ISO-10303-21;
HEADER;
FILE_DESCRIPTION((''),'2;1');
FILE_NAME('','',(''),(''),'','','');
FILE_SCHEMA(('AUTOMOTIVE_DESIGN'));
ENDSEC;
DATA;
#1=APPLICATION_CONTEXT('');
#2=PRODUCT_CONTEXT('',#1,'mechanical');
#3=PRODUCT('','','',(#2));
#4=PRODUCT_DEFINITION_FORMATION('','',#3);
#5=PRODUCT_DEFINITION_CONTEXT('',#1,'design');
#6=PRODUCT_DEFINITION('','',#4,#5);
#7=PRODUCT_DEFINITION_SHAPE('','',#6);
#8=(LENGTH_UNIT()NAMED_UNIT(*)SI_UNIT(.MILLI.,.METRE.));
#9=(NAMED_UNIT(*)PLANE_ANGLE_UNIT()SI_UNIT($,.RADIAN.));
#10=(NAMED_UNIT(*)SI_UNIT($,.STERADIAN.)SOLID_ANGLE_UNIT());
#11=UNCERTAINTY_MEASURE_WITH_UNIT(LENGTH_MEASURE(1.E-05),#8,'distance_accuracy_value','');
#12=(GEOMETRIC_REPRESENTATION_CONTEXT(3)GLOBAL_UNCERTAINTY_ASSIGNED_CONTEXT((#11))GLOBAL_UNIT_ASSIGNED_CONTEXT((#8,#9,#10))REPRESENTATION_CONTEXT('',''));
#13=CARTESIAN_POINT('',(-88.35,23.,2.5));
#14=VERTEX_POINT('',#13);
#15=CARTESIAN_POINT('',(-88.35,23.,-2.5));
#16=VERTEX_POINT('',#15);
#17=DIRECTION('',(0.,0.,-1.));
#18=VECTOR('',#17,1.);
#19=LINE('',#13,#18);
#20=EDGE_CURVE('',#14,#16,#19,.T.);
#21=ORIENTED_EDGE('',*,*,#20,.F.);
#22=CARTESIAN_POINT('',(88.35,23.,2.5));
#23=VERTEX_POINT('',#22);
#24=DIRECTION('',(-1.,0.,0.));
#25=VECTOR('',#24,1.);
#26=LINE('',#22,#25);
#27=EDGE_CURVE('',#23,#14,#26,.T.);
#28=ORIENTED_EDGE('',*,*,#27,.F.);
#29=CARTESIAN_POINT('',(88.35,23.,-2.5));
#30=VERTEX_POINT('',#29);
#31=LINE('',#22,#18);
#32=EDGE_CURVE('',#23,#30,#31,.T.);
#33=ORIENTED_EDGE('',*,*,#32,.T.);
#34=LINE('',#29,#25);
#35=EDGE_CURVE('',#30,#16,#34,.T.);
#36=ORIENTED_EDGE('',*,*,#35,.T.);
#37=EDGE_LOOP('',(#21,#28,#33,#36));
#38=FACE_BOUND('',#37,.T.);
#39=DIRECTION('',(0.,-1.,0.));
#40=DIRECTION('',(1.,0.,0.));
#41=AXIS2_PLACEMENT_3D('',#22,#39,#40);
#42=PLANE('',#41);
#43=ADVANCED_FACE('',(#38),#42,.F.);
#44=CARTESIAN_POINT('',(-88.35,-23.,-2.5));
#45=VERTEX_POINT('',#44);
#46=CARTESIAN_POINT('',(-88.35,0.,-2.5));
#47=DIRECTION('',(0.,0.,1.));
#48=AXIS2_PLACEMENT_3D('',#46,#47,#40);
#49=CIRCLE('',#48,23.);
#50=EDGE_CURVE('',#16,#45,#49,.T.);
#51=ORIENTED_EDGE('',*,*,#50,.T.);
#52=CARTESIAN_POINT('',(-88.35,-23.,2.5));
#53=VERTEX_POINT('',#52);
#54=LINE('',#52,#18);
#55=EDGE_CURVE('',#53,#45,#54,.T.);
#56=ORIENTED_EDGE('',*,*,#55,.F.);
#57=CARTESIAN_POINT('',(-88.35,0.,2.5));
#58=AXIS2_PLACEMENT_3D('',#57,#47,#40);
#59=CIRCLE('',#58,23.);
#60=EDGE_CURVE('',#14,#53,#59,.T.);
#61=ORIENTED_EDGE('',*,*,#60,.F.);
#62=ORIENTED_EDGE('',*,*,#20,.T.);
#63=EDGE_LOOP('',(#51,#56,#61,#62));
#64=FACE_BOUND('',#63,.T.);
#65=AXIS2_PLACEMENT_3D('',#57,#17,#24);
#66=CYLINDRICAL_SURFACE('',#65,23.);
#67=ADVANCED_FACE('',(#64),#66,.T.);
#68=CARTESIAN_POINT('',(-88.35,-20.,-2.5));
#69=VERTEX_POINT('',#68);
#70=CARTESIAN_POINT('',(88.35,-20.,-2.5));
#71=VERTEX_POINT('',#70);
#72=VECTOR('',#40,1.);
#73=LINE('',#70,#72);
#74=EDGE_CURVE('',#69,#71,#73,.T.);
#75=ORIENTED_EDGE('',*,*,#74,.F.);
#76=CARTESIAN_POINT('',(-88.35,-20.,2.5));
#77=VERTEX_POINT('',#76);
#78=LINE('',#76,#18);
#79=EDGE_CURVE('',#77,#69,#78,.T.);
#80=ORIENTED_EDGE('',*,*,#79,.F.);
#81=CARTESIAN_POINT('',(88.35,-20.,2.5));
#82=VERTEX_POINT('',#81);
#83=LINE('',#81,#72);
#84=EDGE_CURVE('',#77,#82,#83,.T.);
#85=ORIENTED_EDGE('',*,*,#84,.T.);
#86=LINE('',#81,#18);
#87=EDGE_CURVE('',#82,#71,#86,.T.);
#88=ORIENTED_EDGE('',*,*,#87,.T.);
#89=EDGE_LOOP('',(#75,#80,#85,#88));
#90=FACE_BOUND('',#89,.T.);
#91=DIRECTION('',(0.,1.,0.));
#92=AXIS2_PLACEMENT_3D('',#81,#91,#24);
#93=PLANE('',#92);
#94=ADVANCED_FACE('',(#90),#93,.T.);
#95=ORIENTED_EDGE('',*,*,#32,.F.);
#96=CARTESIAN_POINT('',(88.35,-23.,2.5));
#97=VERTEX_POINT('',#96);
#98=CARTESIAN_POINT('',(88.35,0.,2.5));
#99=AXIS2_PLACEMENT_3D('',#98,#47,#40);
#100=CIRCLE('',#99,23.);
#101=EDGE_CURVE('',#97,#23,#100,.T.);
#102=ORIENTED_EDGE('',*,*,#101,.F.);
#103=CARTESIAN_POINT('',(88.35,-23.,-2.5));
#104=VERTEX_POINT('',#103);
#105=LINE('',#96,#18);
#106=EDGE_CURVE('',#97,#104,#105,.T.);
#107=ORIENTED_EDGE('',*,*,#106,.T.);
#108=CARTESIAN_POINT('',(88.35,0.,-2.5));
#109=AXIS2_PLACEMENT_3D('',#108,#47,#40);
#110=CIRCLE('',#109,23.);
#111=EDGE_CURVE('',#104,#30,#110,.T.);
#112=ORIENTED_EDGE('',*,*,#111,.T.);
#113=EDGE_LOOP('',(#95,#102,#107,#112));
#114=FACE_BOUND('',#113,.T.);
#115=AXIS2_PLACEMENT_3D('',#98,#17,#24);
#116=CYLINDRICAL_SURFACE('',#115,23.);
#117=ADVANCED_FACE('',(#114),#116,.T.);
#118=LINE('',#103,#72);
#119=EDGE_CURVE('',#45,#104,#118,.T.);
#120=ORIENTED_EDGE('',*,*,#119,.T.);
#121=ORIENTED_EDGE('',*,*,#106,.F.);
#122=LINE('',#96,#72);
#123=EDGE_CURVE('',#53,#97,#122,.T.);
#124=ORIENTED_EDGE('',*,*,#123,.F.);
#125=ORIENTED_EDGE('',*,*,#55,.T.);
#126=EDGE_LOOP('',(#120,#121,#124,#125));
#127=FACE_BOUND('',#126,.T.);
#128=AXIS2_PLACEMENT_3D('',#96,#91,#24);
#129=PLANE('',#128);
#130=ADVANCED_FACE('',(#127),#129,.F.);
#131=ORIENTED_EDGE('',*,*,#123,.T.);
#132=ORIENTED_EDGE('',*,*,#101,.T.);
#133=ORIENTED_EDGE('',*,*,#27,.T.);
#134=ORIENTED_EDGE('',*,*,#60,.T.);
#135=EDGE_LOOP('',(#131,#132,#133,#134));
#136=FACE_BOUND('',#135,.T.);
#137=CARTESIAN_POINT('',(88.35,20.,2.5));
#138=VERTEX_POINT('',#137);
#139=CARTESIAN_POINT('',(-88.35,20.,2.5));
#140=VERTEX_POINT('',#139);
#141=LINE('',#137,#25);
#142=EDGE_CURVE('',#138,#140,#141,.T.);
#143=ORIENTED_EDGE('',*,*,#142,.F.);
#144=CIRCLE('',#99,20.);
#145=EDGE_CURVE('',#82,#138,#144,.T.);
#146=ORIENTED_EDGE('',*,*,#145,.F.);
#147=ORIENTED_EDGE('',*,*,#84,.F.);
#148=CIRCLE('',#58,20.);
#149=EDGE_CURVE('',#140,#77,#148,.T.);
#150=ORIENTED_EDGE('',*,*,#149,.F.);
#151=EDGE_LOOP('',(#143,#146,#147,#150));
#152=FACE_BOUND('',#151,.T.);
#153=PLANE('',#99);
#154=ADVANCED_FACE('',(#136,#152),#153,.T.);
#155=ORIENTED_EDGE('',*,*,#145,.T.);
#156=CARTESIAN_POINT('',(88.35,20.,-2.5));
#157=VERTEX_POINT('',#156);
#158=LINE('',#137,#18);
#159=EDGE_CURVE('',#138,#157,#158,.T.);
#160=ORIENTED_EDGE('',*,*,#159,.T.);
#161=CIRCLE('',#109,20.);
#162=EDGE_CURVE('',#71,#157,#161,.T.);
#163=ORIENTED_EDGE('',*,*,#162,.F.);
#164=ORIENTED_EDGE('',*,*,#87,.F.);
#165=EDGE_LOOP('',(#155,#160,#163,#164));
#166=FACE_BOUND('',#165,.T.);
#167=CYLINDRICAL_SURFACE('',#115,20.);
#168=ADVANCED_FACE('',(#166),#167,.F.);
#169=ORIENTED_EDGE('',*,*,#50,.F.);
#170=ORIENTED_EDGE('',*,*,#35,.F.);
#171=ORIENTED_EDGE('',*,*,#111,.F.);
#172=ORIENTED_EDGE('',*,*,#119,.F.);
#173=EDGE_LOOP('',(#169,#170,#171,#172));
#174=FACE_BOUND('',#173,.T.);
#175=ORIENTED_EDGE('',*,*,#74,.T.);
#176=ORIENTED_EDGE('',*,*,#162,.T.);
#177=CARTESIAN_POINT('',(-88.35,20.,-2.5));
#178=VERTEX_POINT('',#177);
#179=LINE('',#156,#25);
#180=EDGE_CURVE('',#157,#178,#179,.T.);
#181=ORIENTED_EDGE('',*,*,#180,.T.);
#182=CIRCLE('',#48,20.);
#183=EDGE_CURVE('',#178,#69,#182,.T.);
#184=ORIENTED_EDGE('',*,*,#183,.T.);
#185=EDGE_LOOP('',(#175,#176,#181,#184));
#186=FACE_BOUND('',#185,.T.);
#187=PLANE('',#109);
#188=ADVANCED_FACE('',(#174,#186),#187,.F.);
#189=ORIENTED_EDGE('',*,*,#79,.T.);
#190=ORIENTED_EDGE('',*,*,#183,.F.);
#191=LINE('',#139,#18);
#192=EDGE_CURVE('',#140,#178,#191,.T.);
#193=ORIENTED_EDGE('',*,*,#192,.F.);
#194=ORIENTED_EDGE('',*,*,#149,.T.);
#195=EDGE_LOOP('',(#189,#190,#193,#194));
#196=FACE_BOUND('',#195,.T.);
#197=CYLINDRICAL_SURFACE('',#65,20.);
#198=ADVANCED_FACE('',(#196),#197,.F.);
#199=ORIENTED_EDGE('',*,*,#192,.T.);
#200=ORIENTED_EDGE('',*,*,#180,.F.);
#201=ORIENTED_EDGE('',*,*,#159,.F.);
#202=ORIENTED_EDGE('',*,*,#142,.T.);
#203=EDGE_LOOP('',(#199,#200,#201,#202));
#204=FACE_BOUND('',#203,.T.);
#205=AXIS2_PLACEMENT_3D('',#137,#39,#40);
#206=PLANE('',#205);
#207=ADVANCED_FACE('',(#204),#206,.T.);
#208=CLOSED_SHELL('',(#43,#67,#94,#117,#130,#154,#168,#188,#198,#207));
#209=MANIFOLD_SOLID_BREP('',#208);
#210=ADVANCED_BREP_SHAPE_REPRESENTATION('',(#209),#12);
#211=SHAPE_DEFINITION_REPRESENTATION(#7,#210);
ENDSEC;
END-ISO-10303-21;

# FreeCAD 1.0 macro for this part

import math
import FreeCAD as App
import Part
import Sketcher

V = App.Vector

doc = App.newDocument("Part")
body = doc.addObject("PartDesign::Body", "Body")

sketch1 = body.newObject("Sketcher::SketchObject", "Sketch")
sketch1.AttachmentSupport = (doc.getObject("XY_Plane"), [""])
sketch1.MapMode = "FlatFace"
sketch1.addGeometry(Part.LineSegment(V(-88, -23, 0), V(88, -23, 0)), False)
sketch1.addGeometry(Part.ArcOfCircle(Part.Circle(V(88, 0, 0), V(0, 0, 1), 23), math.radians(-90), math.radians(90)), False)
sketch1.addGeometry(Part.LineSegment(V(88, 23, 0), V(-88, 23, 0)), False)
sketch1.addGeometry(Part.ArcOfCircle(Part.Circle(V(-88, 0, 0), V(0, 0, 1), 23), math.radians(90), math.radians(270)), False)
sketch1.addGeometry(Part.LineSegment(V(88, -20, 0), V(-88, -20, 0)), False)
sketch1.addGeometry(Part.ArcOfCircle(Part.Circle(V(-88, 0, 0), V(0, 0, 1), 20), math.radians(90), math.radians(270)), False)
sketch1.addGeometry(Part.LineSegment(V(-88, 20, 0), V(88, 20, 0)), False)
sketch1.addGeometry(Part.ArcOfCircle(Part.Circle(V(88, 0, 0), V(0, 0, 1), 20), math.radians(-90), math.radians(90)), False)
sketch1.addConstraint(Sketcher.Constraint("Tangent", 0, 2, 1, 1))
sketch1.addConstraint(Sketcher.Constraint("Tangent", 1, 2, 2, 1))
sketch1.addConstraint(Sketcher.Constraint("Tangent", 2, 2, 3, 1))
sketch1.addConstraint(Sketcher.Constraint("Tangent", 3, 2, 0, 1))
sketch1.addConstraint(Sketcher.Constraint("Tangent", 4, 2, 5, 2))
sketch1.addConstraint(Sketcher.Constraint("Tangent", 5, 1, 6, 1))
sketch1.addConstraint(Sketcher.Constraint("Tangent", 6, 2, 7, 2))
sketch1.addConstraint(Sketcher.Constraint("Tangent", 7, 1, 4, 1))
sketch1.addConstraint(Sketcher.Constraint("Horizontal", 0))
sketch1.addConstraint(Sketcher.Constraint("Horizontal", 2))
sketch1.addConstraint(Sketcher.Constraint("Horizontal", 4))
sketch1.addConstraint(Sketcher.Constraint("Horizontal", 6))
sketch1.addConstraint(Sketcher.Constraint("Coincident", 5, 3, 3, 3))
sketch1.addConstraint(Sketcher.Constraint("Symmetric", 1, 3, 3, 3, -1, 1))
sketch1.addConstraint(Sketcher.Constraint("Vertical", 7, 3, 0, 2))
sketch1.addConstraint(Sketcher.Constraint("Radius", 1, 23.0))
sketch1.addConstraint(Sketcher.Constraint("Radius", 5, 20.0))
sketch1.addConstraint(Sketcher.Constraint("DistanceX", 0, 1, 0, 2, 176.7))
pad1 = body.newObject("PartDesign::Pad", "Pad")
pad1.Profile = sketch1
pad1.Length = 5
pad1.Midplane = True

doc.recompute()
